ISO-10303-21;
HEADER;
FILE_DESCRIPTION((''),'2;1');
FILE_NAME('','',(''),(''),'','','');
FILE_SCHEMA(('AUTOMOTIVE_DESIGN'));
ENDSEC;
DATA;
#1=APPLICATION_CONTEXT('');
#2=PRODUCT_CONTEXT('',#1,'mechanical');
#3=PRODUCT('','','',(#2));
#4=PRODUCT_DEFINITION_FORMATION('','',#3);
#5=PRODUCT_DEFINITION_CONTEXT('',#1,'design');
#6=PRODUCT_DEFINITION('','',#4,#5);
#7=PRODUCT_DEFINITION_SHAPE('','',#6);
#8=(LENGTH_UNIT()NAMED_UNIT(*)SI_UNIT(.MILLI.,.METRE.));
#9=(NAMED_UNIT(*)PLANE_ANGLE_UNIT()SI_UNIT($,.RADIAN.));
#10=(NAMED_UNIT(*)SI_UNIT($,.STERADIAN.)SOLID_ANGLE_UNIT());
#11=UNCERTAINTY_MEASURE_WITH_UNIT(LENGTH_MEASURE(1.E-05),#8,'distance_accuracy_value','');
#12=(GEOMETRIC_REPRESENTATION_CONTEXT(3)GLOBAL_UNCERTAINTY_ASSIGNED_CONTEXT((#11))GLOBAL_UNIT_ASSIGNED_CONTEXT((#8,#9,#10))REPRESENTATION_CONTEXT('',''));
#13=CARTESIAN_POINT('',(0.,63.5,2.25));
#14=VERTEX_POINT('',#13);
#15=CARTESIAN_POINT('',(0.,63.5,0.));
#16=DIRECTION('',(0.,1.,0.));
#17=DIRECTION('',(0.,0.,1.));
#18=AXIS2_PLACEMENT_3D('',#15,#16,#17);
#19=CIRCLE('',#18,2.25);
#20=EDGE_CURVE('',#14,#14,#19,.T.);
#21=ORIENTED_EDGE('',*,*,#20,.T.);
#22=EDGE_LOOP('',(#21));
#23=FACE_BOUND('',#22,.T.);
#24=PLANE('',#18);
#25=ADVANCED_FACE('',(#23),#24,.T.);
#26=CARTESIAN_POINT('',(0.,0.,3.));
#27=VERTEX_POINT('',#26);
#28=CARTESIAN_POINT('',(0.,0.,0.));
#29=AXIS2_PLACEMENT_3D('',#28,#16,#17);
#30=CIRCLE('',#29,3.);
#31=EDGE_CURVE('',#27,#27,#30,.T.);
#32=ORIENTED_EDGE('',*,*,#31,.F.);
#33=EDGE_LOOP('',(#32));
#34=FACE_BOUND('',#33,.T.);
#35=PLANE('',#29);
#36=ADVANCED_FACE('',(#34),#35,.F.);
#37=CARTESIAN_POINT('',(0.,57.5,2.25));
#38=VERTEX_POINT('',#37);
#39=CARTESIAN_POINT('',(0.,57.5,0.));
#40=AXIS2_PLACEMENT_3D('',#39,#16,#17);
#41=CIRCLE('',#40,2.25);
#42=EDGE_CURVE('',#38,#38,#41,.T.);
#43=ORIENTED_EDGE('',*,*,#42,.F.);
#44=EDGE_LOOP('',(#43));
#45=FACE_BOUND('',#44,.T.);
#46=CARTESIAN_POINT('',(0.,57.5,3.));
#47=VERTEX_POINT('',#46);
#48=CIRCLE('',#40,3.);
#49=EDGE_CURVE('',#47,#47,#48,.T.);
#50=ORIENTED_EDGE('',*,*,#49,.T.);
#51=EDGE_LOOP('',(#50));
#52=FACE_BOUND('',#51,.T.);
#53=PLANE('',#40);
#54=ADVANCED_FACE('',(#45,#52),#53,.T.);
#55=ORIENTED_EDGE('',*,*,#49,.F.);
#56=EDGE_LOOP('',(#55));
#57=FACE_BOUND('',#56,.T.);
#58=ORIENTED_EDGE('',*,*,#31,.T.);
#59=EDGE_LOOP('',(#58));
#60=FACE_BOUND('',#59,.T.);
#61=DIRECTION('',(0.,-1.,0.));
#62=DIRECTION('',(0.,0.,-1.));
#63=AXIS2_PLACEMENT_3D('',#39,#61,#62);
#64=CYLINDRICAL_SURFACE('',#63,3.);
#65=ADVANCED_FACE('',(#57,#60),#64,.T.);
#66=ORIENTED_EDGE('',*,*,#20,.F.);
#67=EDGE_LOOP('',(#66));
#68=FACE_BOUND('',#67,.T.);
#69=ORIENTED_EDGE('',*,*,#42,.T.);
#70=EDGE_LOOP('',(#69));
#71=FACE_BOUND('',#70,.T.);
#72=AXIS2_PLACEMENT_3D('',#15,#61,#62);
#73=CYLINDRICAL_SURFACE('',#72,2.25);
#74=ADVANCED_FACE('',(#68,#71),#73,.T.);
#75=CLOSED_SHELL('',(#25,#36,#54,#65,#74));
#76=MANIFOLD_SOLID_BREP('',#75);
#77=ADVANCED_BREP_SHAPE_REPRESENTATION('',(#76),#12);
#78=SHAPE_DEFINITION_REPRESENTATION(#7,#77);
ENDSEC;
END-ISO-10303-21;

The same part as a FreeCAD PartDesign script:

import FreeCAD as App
import Part
import Sketcher

V = App.Vector
Q = App.Units.Quantity

doc = App.newDocument("Part")
body = doc.addObject("PartDesign::Body", "Body")

# Sketch on XZ plane
sketch1 = body.newObject("Sketcher::SketchObject", "Sketch")
sketch1.AttachmentSupport = (doc.getObject("XZ_Plane"), [""])
sketch1.MapMode = "FlatFace"
sketch1.addGeometry(Part.Circle(V(0, 0, 0), V(0, 0, 1), 3), False)
sketch1.addConstraint([
    Sketcher.Constraint("Coincident", 0, 3, -1, 1),
    Sketcher.Constraint("Diameter", 0, Q("6 mm")),
])
pad1 = body.newObject("PartDesign::Pad", "Pad")
pad1.Profile = sketch1
pad1.Length = 57.5
pad1.Reversed = True

# Sketch on XZ plane
sketch2 = body.newObject("Sketcher::SketchObject", "Sketch001")
sketch2.AttachmentSupport = (doc.getObject("XZ_Plane"), [""])
sketch2.MapMode = "FlatFace"
sketch2.AttachmentOffset = App.Placement(V(0, 0, -57.5), App.Rotation())
sketch2.addGeometry(Part.Circle(V(0, 0, 0), V(0, 0, 1), 2.2), False)
sketch2.addConstraint([
    Sketcher.Constraint("Coincident", 0, 3, -1, 1),
    Sketcher.Constraint("Diameter", 0, Q("4.5 mm")),
])
pad2 = body.newObject("PartDesign::Pad", "Pad001")
pad2.Profile = sketch2
pad2.Length = 6
pad2.Reversed = True

doc.recompute()
